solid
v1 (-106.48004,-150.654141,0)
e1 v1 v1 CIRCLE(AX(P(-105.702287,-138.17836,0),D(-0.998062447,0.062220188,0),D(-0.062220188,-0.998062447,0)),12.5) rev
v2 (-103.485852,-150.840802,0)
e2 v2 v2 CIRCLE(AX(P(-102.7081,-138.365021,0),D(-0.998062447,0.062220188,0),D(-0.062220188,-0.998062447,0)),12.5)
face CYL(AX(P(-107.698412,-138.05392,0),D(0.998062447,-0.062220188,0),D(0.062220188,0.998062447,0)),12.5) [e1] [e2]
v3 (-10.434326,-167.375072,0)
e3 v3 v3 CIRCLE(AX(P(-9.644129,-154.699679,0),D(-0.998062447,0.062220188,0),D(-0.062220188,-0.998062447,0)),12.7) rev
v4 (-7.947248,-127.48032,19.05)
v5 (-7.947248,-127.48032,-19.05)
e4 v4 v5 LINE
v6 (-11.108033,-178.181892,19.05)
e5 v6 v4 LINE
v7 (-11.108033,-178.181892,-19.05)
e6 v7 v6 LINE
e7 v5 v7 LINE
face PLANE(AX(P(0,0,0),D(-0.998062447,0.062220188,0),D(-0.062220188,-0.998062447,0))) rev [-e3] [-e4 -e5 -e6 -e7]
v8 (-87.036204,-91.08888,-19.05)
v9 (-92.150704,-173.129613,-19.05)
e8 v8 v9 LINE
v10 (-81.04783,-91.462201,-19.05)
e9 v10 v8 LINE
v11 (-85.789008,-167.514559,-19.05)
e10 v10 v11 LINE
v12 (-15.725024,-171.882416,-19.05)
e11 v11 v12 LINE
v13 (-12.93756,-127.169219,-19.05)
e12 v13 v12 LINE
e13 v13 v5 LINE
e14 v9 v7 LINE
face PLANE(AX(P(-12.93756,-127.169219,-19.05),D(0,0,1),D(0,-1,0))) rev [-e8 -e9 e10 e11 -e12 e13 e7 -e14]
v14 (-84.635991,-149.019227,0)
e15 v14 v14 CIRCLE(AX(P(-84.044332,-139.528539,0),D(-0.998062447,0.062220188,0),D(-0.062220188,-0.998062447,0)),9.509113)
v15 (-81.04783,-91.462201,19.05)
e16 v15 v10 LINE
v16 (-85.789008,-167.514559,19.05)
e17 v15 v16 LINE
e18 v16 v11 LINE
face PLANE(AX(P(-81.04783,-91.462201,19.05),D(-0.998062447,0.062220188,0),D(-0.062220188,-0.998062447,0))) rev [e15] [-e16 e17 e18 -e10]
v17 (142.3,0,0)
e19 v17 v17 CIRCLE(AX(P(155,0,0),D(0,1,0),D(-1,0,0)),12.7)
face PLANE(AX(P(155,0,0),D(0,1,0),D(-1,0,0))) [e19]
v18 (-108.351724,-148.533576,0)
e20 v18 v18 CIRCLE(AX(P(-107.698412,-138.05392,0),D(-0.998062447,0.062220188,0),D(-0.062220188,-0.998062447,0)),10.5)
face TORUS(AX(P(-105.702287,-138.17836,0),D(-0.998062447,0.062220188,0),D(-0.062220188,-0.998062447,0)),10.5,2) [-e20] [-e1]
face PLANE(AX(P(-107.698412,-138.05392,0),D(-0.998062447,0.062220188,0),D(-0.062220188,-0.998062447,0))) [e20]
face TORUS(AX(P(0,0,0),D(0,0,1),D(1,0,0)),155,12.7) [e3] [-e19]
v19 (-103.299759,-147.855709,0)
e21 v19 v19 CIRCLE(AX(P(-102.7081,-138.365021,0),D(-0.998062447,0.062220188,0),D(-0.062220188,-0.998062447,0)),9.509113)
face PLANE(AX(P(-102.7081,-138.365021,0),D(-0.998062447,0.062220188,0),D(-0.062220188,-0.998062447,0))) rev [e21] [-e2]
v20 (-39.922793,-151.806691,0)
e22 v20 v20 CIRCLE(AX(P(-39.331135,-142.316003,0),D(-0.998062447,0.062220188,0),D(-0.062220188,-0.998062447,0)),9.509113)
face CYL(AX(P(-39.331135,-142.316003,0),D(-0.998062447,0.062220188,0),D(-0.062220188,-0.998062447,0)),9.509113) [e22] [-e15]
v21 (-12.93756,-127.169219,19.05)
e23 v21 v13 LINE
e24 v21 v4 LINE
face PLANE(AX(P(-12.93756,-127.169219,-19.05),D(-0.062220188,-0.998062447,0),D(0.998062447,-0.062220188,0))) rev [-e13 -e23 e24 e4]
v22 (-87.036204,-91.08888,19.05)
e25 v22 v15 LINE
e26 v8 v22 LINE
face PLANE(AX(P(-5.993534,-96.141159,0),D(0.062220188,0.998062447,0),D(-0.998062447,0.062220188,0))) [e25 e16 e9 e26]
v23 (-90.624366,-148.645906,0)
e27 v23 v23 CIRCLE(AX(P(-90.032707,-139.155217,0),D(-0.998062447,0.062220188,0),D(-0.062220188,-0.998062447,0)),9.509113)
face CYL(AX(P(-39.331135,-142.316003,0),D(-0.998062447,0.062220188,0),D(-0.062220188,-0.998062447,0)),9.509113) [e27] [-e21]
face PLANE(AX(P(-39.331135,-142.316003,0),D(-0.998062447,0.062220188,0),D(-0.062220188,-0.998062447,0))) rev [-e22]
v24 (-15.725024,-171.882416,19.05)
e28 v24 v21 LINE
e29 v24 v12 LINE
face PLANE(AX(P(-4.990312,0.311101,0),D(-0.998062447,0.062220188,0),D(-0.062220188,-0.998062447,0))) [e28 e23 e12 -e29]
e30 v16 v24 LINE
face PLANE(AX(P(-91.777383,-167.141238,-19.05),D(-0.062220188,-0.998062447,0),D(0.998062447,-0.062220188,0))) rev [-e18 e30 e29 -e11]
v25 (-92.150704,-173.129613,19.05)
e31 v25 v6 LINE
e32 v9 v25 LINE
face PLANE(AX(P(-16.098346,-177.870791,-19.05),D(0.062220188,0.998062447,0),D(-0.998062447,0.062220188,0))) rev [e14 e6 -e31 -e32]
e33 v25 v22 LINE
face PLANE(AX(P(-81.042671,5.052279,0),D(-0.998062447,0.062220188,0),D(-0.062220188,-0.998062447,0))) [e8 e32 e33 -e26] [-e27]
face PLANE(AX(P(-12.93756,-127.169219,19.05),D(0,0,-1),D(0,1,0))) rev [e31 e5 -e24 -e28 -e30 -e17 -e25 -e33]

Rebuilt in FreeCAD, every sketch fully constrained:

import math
import FreeCAD as App
import Part
import Sketcher

V = App.Vector


def edges_at(feature, points):
    """Names of the edges that pass closest to the given points."""
    edges = feature.Shape.Edges
    near = lambda p: min(range(len(edges)), key=lambda i: edges[i].distToShape(Part.Vertex(*p))[0])
    return sorted({f"Edge{near(p) + 1}" for p in points})

doc = App.newDocument("Part")
body = doc.addObject("PartDesign::Body", "Body")

# Sketch on an angled plane
sketch1 = body.newObject("Sketcher::SketchObject", "Sketch")
sketch1.Placement = App.Placement(V(-9.644129, -154.699679, 0), App.Rotation(V(0.062220188, 0.998062447, 0), V(0, 0, 1), V(0.998062447, -0.062220188, 0), "ZXY"))
sketch1.addGeometry(Part.Circle(V(0, 0, 0), V(0, 0, 1), 12.7), False)
sketch1.addConstraint([
    Sketcher.Constraint("Coincident", 0, 3, -1, 1),
    Sketcher.Constraint("Diameter", 0, 25.4),
])

# Sketch on XY plane
sketch2 = body.newObject("Sketcher::SketchObject", "Sketch001")
sketch2.AttachmentSupport = (doc.getObject("XY_Plane"), [""])
sketch2.MapMode = "FlatFace"
sketch2.addGeometry(Part.ArcOfCircle(Part.Circle(V(0, 0, 0), V(0, 0, 1), 155), math.radians(-93.567258), math.radians(0)), False)
sketch2.addConstraint([
    Sketcher.Constraint("Coincident", 0, 3, -1, 1),
    Sketcher.Constraint("PointOnObject", 0, 2, -1),
    Sketcher.Constraint("Radius", 0, 155.0),
    Sketcher.Constraint("DistanceX", 0, 1, -1, 1, 9.644129),
])
doc.recompute()

additivepipe = body.newObject("PartDesign::AdditivePipe", "AdditivePipe")
additivepipe.Profile = sketch1
additivepipe.Spine = (sketch2, ["Edge1"])

# Sketch on an angled plane
sketch3 = body.newObject("Sketcher::SketchObject", "Sketch002")
sketch3.Placement = App.Placement(V(0, 0, 0), App.Rotation(V(0, 0, 1), V(0.062220188, 0.998062447, 0), V(-0.998062447, 0.062220188, 0), "ZXY"))
sketch3.addGeometry([
    Part.LineSegment(V(-19.05, -127.727799, 0), V(-19.05, -178.527799, 0)),
    Part.LineSegment(V(-19.05, -178.527799, 0), V(19.05, -178.527799, 0)),
    Part.LineSegment(V(19.05, -178.527799, 0), V(19.05, -127.727799, 0)),
    Part.LineSegment(V(19.05, -127.727799, 0), V(-19.05, -127.727799, 0)),
], False)
sketch3.addConstraint([
    Sketcher.Constraint("Coincident", 0, 2, 1, 1),
    Sketcher.Constraint("Coincident", 1, 2, 2, 1),
    Sketcher.Constraint("Coincident", 2, 2, 3, 1),
    Sketcher.Constraint("Coincident", 3, 2, 0, 1),
    Sketcher.Constraint("Vertical", 0),
    Sketcher.Constraint("Horizontal", 1),
    Sketcher.Constraint("Vertical", 2),
    Sketcher.Constraint("Horizontal", 3),
    Sketcher.Constraint("DistanceX", 1, 1, 1, 2, 38.1),
    Sketcher.Constraint("DistanceY", 0, 2, 0, 1, 50.8),
    Sketcher.Constraint("DistanceX", 0, 2, -1, 1, 19.05),
    Sketcher.Constraint("DistanceY", 0, 2, -1, 1, 178.527799),
])
pad1 = body.newObject("PartDesign::Pad", "Pad")
pad1.Profile = sketch3
pad1.Length = 5

# Sketch on an angled plane
sketch4 = body.newObject("Sketcher::SketchObject", "Sketch003")
sketch4.Placement = App.Placement(V(-4.990312, 0.311101, 0), App.Rotation(V(0, 0, 1), V(0.062220188, 0.998062447, 0), V(-0.998062447, 0.062220188, 0), "ZXY"))
sketch4.addGeometry([
    Part.LineSegment(V(-19.05, -172.527799, 0), V(-19.05, -178.527799, 0)),
    Part.LineSegment(V(-19.05, -178.527799, 0), V(19.05, -178.527799, 0)),
    Part.LineSegment(V(19.05, -178.527799, 0), V(19.05, -172.527799, 0)),
    Part.LineSegment(V(19.05, -172.527799, 0), V(-19.05, -172.527799, 0)),
], False)
sketch4.addConstraint([
    Sketcher.Constraint("Coincident", 0, 2, 1, 1),
    Sketcher.Constraint("Coincident", 1, 2, 2, 1),
    Sketcher.Constraint("Coincident", 2, 2, 3, 1),
    Sketcher.Constraint("Coincident", 3, 2, 0, 1),
    Sketcher.Constraint("Vertical", 0),
    Sketcher.Constraint("Horizontal", 1),
    Sketcher.Constraint("Vertical", 2),
    Sketcher.Constraint("Horizontal", 3),
    Sketcher.Constraint("DistanceY", 0, 2, 0, 1, 6.0),
    Sketcher.Constraint("DistanceX", 1, 1, 1, 2, 38.1),
    Sketcher.Constraint("DistanceX", 0, 2, -1, 1, 19.05),
    Sketcher.Constraint("DistanceY", 0, 2, -1, 1, 178.527799),
])
pad2 = body.newObject("PartDesign::Pad", "Pad001")
pad2.Profile = sketch4
pad2.Length = 76.2

# Sketch on an angled plane
sketch5 = body.newObject("Sketcher::SketchObject", "Sketch004")
sketch5.Placement = App.Placement(V(-10.734712, -172.193517, 0), App.Rotation(V(0.998062447, -0.062220188, 0), V(0, 0, -1), V(0.062220188, 0.998062447, 0), "ZXY"))
sketch5.addGeometry([
    Part.LineSegment(V(-81.2, 19.05, 0), V(-81.2, -19.05, 0)),
    Part.LineSegment(V(-81.2, -19.05, 0), V(-75.2, -19.05, 0)),
    Part.LineSegment(V(-75.2, -19.05, 0), V(-75.2, 19.05, 0)),
    Part.LineSegment(V(-75.2, 19.05, 0), V(-81.2, 19.05, 0)),
], False)
sketch5.addConstraint([
    Sketcher.Constraint("Coincident", 0, 2, 1, 1),
    Sketcher.Constraint("Coincident", 1, 2, 2, 1),
    Sketcher.Constraint("Coincident", 2, 2, 3, 1),
    Sketcher.Constraint("Coincident", 3, 2, 0, 1),
    Sketcher.Constraint("Vertical", 0),
    Sketcher.Constraint("Horizontal", 1),
    Sketcher.Constraint("Vertical", 2),
    Sketcher.Constraint("Horizontal", 3),
    Sketcher.Constraint("DistanceX", 1, 1, 1, 2, 6.0),
    Sketcher.Constraint("DistanceY", 0, 2, 0, 1, 38.1),
    Sketcher.Constraint("DistanceX", 0, 2, -1, 1, 81.2),
    Sketcher.Constraint("DistanceY", 0, 2, -1, 1, 19.05),
])
pad3 = body.newObject("PartDesign::Pad", "Pad002")
pad3.Profile = sketch5
pad3.Length = 76.2

# Sketch on an angled plane
sketch6 = body.newObject("Sketcher::SketchObject", "Sketch005")
sketch6.Placement = App.Placement(V(-81.042671, 5.052279, 0), App.Rotation(V(0, 0, 1), V(0.062220188, 0.998062447, 0), V(-0.998062447, 0.062220188, 0), "ZXY"))
sketch6.addGeometry(Part.Circle(V(0, -144.487449, 0), V(0, 0, 1), 9.509113), False)
sketch6.addConstraint([
    Sketcher.Constraint("PointOnObject", 0, 3, -2),
    Sketcher.Constraint("Diameter", 0, 19.018225),
    Sketcher.Constraint("DistanceY", 0, 3, -1, 1, 144.487449),
])
pad4 = body.newObject("PartDesign::Pad", "Pad003")
pad4.Profile = sketch6
pad4.Type = "TwoLengths"
pad4.Length = 12.7
pad4.Length2 = 50.8

# Sketch on an angled plane
sketch7 = body.newObject("Sketcher::SketchObject", "Sketch006")
sketch7.Placement = App.Placement(V(-93.718064, 5.842476, 0), App.Rotation(V(0, 0, 1), V(0.062220188, 0.998062447, 0), V(-0.998062447, 0.062220188, 0), "ZXY"))
sketch7.addGeometry(Part.Circle(V(0, -144.487449, 0), V(0, 0, 1), 12.5), False)
sketch7.addConstraint([
    Sketcher.Constraint("PointOnObject", 0, 3, -2),
    Sketcher.Constraint("Diameter", 0, 25.0),
    Sketcher.Constraint("DistanceY", 0, 3, -1, 1, 144.487449),
])
pad5 = body.newObject("PartDesign::Pad", "Pad004")
pad5.Profile = sketch7
pad5.Length = 5
doc.recompute()

fillet = body.newObject("PartDesign::Fillet", "Fillet")
fillet.Base = (pad5, edges_at(pad5, [(-106.921, -125.578, 0)]))
fillet.Radius = 2

doc.recompute()
